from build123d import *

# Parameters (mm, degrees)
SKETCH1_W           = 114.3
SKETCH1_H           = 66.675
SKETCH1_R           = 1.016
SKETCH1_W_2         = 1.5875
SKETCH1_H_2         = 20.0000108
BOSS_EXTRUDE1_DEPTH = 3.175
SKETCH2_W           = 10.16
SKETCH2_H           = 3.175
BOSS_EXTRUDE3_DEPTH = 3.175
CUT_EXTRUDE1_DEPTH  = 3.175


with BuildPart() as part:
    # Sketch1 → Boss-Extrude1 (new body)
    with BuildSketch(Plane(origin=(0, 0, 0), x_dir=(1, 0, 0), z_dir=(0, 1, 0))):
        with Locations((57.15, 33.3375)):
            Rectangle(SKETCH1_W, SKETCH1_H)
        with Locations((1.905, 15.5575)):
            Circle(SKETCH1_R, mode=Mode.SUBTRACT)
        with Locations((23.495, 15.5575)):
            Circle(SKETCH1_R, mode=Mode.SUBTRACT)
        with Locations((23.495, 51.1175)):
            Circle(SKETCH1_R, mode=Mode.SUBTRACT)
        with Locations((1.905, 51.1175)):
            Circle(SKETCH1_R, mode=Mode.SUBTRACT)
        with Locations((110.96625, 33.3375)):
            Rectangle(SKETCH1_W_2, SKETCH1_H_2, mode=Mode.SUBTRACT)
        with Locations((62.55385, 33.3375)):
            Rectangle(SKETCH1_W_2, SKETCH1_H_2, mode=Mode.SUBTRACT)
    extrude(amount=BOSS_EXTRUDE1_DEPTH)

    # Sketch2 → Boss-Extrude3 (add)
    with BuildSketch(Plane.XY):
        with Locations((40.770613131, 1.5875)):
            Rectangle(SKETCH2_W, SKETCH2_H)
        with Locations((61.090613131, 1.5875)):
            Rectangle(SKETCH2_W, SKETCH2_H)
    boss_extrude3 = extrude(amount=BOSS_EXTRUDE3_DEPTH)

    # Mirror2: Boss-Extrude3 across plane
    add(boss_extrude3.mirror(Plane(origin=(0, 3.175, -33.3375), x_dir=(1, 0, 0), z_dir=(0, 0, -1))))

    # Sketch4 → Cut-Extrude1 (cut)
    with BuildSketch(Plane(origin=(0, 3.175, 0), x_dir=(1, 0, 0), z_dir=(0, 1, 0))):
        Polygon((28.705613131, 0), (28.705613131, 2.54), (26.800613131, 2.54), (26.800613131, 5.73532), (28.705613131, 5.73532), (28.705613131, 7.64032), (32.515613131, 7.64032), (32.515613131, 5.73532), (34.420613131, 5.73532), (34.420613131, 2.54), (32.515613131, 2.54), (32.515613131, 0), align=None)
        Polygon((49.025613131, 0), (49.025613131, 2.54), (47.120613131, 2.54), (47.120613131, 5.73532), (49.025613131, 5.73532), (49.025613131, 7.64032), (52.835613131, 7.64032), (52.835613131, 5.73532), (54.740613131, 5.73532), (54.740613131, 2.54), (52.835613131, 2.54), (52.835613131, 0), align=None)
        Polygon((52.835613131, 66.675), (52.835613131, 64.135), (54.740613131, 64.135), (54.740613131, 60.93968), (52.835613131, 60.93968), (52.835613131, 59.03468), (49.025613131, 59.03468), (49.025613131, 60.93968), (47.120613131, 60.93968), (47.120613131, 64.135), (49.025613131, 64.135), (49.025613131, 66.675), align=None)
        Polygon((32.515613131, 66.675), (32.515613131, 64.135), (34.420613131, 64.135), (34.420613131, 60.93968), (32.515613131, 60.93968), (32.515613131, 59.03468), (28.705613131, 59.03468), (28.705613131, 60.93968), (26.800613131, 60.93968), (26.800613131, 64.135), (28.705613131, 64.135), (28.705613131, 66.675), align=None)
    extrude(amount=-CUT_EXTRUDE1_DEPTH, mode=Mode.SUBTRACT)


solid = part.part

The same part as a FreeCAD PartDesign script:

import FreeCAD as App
import Part
import Sketcher
from FreeCAD import Vector
Q = App.Units.Quantity


def add_polygon(sketch, points):
    """Adds a closed chain of lines whose ends are joined by coincident constraints."""
    first, n = sketch.GeometryCount, len(points)
    for a, b in zip(points, points[1:] + points[:1]):
        sketch.addGeometry(Part.LineSegment(App.Vector(*a, 0), App.Vector(*b, 0)), False)
    for i in range(n):
        sketch.addConstraint(Sketcher.Constraint("Coincident", first + i, 2, first + (i + 1) % n, 1))

doc = App.newDocument("Part")
body = doc.addObject("PartDesign::Body", "Body")

# Sketch on XZ plane
sketch1 = body.newObject("Sketcher::SketchObject", "Sketch")
sketch1.AttachmentSupport = (doc.getObject("XZ_Plane"), [""])
sketch1.MapMode = "FlatFace"
add_polygon(sketch1, [(0, -66.7), (0, 0), (114.3, 0), (114.3, -66.7)])  # lines 0-3
sketch1.addGeometry(Part.Circle(Vector(1.9, -15.6, 0), Vector(0, 0, 1), 1), False)  # 4
sketch1.addGeometry(Part.Circle(Vector(23.5, -15.6, 0), Vector(0, 0, 1), 1), False)  # 5
sketch1.addGeometry(Part.Circle(Vector(1.9, -51.1, 0), Vector(0, 0, 1), 1), False)  # 6
sketch1.addGeometry(Part.Circle(Vector(23.5, -51.1, 0), Vector(0, 0, 1), 1), False)  # 7
add_polygon(sketch1, [(63.3, -23.3), (61.8, -23.3), (61.8, -43.3), (63.3, -43.3)])  # lines 8-11
add_polygon(sketch1, [(111.8, -23.3), (110.2, -23.3), (110.2, -43.3), (111.8, -43.3)])  # lines 12-15
sketch1.addConstraint([
    Sketcher.Constraint("Vertical", 0),
    Sketcher.Constraint("Horizontal", 1),
    Sketcher.Constraint("Vertical", 2),
    Sketcher.Constraint("Horizontal", 3),
    Sketcher.Constraint("Horizontal", 8),
    Sketcher.Constraint("Vertical", 9),
    Sketcher.Constraint("Horizontal", 10),
    Sketcher.Constraint("Vertical", 11),
    Sketcher.Constraint("Horizontal", 12),
    Sketcher.Constraint("Vertical", 13),
    Sketcher.Constraint("Horizontal", 14),
    Sketcher.Constraint("Vertical", 15),
    Sketcher.Constraint("Coincident", 0, 2, -1, 1),
    Sketcher.Constraint("Equal", 4, 5),
    Sketcher.Constraint("Equal", 5, 6),
    Sketcher.Constraint("Equal", 6, 7),
    Sketcher.Constraint("Horizontal", 4, 3, 5, 3),
    Sketcher.Constraint("Horizontal", 6, 3, 7, 3),
    Sketcher.Constraint("Horizontal", 11, 2, 12, 2),
    Sketcher.Constraint("Horizontal", 10, 2, 13, 2),
    Sketcher.Constraint("Vertical", 4, 3, 6, 3),
    Sketcher.Constraint("Vertical", 5, 3, 7, 3),
    Sketcher.Constraint("Equal", 10, 12),
    Sketcher.Constraint("Diameter", 4, Q("0.08 in")),
    Sketcher.Constraint("DistanceX", 1, 1, 1, 2, Q("4.5 in")),
    Sketcher.Constraint("DistanceX", -1, 1, 14, 2, Q("4.4 in")),
    Sketcher.Constraint("DistanceY", 6, 3, 4, 3, Q("1.4 in")),
    Sketcher.Constraint("DistanceX", 8, 2, 8, 1, Q("0.0625 in")),
    Sketcher.Constraint("DistanceY", 0, 1, 0, 2, Q("2.625 in")),
    Sketcher.Constraint("DistanceX", 4, 3, 5, 3, Q("0.85 in")),
    Sketcher.Constraint("DistanceX", -1, 1, 4, 3, Q("0.075 in")),
    Sketcher.Constraint("DistanceX", -1, 1, 10, 2, Q("2.494 in")),
    Sketcher.Constraint("DistanceY", 4, 3, -1, 1, Q("0.6125 in")),
    Sketcher.Constraint("DistanceY", 9, 2, 9, 1, 20.000011),
    Sketcher.Constraint("DistanceY", 8, 2, -1, 1, 23.337495),
])
pad1 = body.newObject("PartDesign::Pad", "Pad")
pad1.Profile = sketch1
pad1.Length = Q("0.125 in")
pad1.Reversed = True

# Sketch on XY plane
sketch2 = body.newObject("Sketcher::SketchObject", "Sketch001")
sketch2.AttachmentSupport = (doc.getObject("XY_Plane"), [""])
sketch2.MapMode = "FlatFace"
add_polygon(sketch2, [(35.7, 3.2), (35.7, 0), (45.9, 0), (45.9, 3.2)])  # lines 0-3
add_polygon(sketch2, [(56, 3.2), (56, 0), (66.2, 0), (66.2, 3.2)])  # lines 4-7
sketch2.addConstraint([
    Sketcher.Constraint("Vertical", 0),
    Sketcher.Constraint("Horizontal", 1),
    Sketcher.Constraint("Vertical", 2),
    Sketcher.Constraint("Horizontal", 3),
    Sketcher.Constraint("Vertical", 4),
    Sketcher.Constraint("Horizontal", 5),
    Sketcher.Constraint("Vertical", 6),
    Sketcher.Constraint("Horizontal", 7),
    Sketcher.Constraint("PointOnObject", 0, 2, -1),
    Sketcher.Constraint("PointOnObject", 4, 2, -1),
    Sketcher.Constraint("Horizontal", 3, 2, 6, 2),
    Sketcher.Constraint("Equal", 3, 5),
    Sketcher.Constraint("DistanceX", 1, 1, 1, 2, Q("0.4 in")),
    Sketcher.Constraint("DistanceX", 1, 2, 4, 2, Q("0.4 in")),
    Sketcher.Constraint("DistanceY", 0, 2, 0, 1, Q("0.125 in")),
    Sketcher.Constraint("DistanceX", -1, 1, 0, 2, 35.690613),
])
pad2 = body.newObject("PartDesign::Pad", "Pad001")
pad2.Profile = sketch2
pad2.Length = Q("0.125 in")
doc.recompute()

datumplane = body.newObject("PartDesign::Plane", "DatumPlane")
datumplane.AttachmentSupport = (doc.getObject("XY_Plane"), [""])
datumplane.MapMode = "FlatFace"
datumplane.AttachmentOffset = App.Placement(Vector(0, 0, -1.3125 * 25.4), App.Rotation())
mirrored = body.newObject("PartDesign::Mirrored", "Mirrored")
mirrored.Originals = [pad2]
mirrored.MirrorPlane = (datumplane, [""])
body.Tip = mirrored

# Sketch on XZ plane
sketch3 = body.newObject("Sketcher::SketchObject", "Sketch002")
sketch3.AttachmentSupport = (doc.getObject("XZ_Plane"), [""])
sketch3.MapMode = "FlatFace"
sketch3.AttachmentOffset = App.Placement(Vector(0, 0, -0.125 * 25.4), App.Rotation())
add_polygon(sketch3, [(28.7, -2.5), (28.7, 0), (32.5, 0), (32.5, -2.5), (34.4, -2.5), (34.4, -5.7), (32.5, -5.7), (32.5, -7.6), (28.7, -7.6), (28.7, -5.7), (26.8, -5.7), (26.8, -2.5)])  # lines 0-11
add_polygon(sketch3, [(49, -2.5), (49, 0), (52.8, 0), (52.8, -2.5), (54.7, -2.5), (54.7, -5.7), (52.8, -5.7), (52.8, -7.6), (49, -7.6), (49, -5.7), (47.1, -5.7), (47.1, -2.5)])  # lines 12-23
add_polygon(sketch3, [(52.8, -64.1), (52.8, -66.7), (49, -66.7), (49, -64.1), (47.1, -64.1), (47.1, -60.9), (49, -60.9), (49, -59), (52.8, -59), (52.8, -60.9), (54.7, -60.9), (54.7, -64.1)])  # lines 24-35
add_polygon(sketch3, [(32.5, -64.1), (32.5, -66.7), (28.7, -66.7), (28.7, -64.1), (26.8, -64.1), (26.8, -60.9), (28.7, -60.9), (28.7, -59), (32.5, -59), (32.5, -60.9), (34.4, -60.9), (34.4, -64.1)])  # lines 36-47
sketch3.addConstraint([
    Sketcher.Constraint("Vertical", 0),
    Sketcher.Constraint("Horizontal", 1),
    Sketcher.Constraint("Vertical", 2),
    Sketcher.Constraint("Horizontal", 3),
    Sketcher.Constraint("Vertical", 4),
    Sketcher.Constraint("Horizontal", 5),
    Sketcher.Constraint("Vertical", 6),
    Sketcher.Constraint("Horizontal", 7),
    Sketcher.Constraint("Vertical", 8),
    Sketcher.Constraint("Horizontal", 9),
    Sketcher.Constraint("Vertical", 10),
    Sketcher.Constraint("Horizontal", 11),
    Sketcher.Constraint("Vertical", 12),
    Sketcher.Constraint("Horizontal", 13),
    Sketcher.Constraint("Vertical", 14),
    Sketcher.Constraint("Horizontal", 15),
    Sketcher.Constraint("Vertical", 16),
    Sketcher.Constraint("Horizontal", 17),
    Sketcher.Constraint("Vertical", 18),
    Sketcher.Constraint("Horizontal", 19),
    Sketcher.Constraint("Vertical", 20),
    Sketcher.Constraint("Horizontal", 21),
    Sketcher.Constraint("Vertical", 22),
    Sketcher.Constraint("Horizontal", 23),
    Sketcher.Constraint("Vertical", 24),
    Sketcher.Constraint("Horizontal", 25),
    Sketcher.Constraint("Vertical", 26),
    Sketcher.Constraint("Horizontal", 27),
    Sketcher.Constraint("Vertical", 28),
    Sketcher.Constraint("Horizontal", 29),
    Sketcher.Constraint("Vertical", 30),
    Sketcher.Constraint("Horizontal", 31),
    Sketcher.Constraint("Vertical", 32),
    Sketcher.Constraint("Horizontal", 33),
    Sketcher.Constraint("Vertical", 34),
    Sketcher.Constraint("Horizontal", 35),
    Sketcher.Constraint("Vertical", 36),
    Sketcher.Constraint("Horizontal", 37),
    Sketcher.Constraint("Vertical", 38),
    Sketcher.Constraint("Horizontal", 39),
    Sketcher.Constraint("Vertical", 40),
    Sketcher.Constraint("Horizontal", 41),
    Sketcher.Constraint("Vertical", 42),
    Sketcher.Constraint("Horizontal", 43),
    Sketcher.Constraint("Vertical", 44),
    Sketcher.Constraint("Horizontal", 45),
    Sketcher.Constraint("Vertical", 46),
    Sketcher.Constraint("Horizontal", 47),
    Sketcher.Constraint("PointOnObject", 0, 2, -1),
    Sketcher.Constraint("PointOnObject", 12, 2, -1),
    Sketcher.Constraint("Horizontal", 5, 2, 8, 2),
    Sketcher.Constraint("Horizontal", 3, 2, 10, 2),
    Sketcher.Constraint("Horizontal", 11, 2, 14, 2),
    Sketcher.Constraint("Horizontal", 9, 2, 16, 2),
    Sketcher.Constraint("Horizontal", 7, 2, 18, 2),
    Sketcher.Constraint("Horizontal", 17, 2, 20, 2),
    Sketcher.Constraint("Horizontal", 15, 2, 22, 2),
    Sketcher.Constraint("Horizontal", 29, 2, 32, 2),
    Sketcher.Constraint("Horizontal", 27, 2, 34, 2),
    Sketcher.Constraint("Horizontal", 25, 2, 36, 2),
    Sketcher.Constraint("Horizontal", 35, 2, 38, 2),
    Sketcher.Constraint("Horizontal", 33, 2, 40, 2),
    Sketcher.Constraint("Horizontal", 31, 2, 42, 2),
    Sketcher.Constraint("Horizontal", 41, 2, 44, 2),
    Sketcher.Constraint("Horizontal", 39, 2, 46, 2),
    Sketcher.Constraint("Vertical", 2, 2, 5, 2),
    Sketcher.Constraint("Vertical", 0, 2, 7, 2),
    Sketcher.Constraint("Vertical", 14, 2, 17, 2),
    Sketcher.Constraint("Vertical", 12, 2, 19, 2),
    Sketcher.Constraint("Vertical", 18, 2, 24, 2),
    Sketcher.Constraint("Vertical", 23, 2, 25, 2),
    Sketcher.Constraint("Vertical", 22, 2, 27, 2),
    Sketcher.Constraint("Vertical", 26, 2, 29, 2),
    Sketcher.Constraint("Vertical", 24, 2, 31, 2),
    Sketcher.Constraint("Vertical", 16, 2, 33, 2),
    Sketcher.Constraint("Vertical", 6, 2, 36, 2),
    Sketcher.Constraint("Vertical", 11, 2, 37, 2),
    Sketcher.Constraint("Vertical", 10, 2, 39, 2),
    Sketcher.Constraint("Vertical", 38, 2, 41, 2),
    Sketcher.Constraint("Vertical", 36, 2, 43, 2),
    Sketcher.Constraint("Vertical", 4, 2, 45, 2),
    Sketcher.Constraint("Equal", 5, 9),
    Sketcher.Constraint("Equal", 7, 13),
    Sketcher.Constraint("Equal", 11, 15),
    Sketcher.Constraint("Equal", 17, 21),
    Sketcher.Constraint("Equal", 47, 6),
    Sketcher.Constraint("Equal", 14, 24),
    Sketcher.Constraint("Equal", 22, 28),
    Sketcher.Constraint("Equal", 20, 30),
    Sketcher.Constraint("DistanceY", 0, 1, 0, 2, Q("0.1 in")),
    Sketcher.Constraint("DistanceX", 1, 1, 1, 2, Q("0.15 in")),
    Sketcher.Constraint("DistanceX", 1, 2, 13, 2, Q("0.8 in")),
    Sketcher.Constraint("DistanceX", 3, 1, 3, 2, Q("0.075 in")),
    Sketcher.Constraint("DistanceY", 4, 2, 4, 1, Q("0.1258 in")),
    Sketcher.Constraint("DistanceY", 24, 2, -1, 1, Q("2.625 in")),
    Sketcher.Constraint("DistanceX", -1, 1, 0, 2, 28.705613),
])
pocket1 = body.newObject("PartDesign::Pocket", "Pocket")
pocket1.Profile = sketch3
pocket1.Length = Q("0.125 in")
pocket1.Reversed = True

doc.recompute()
